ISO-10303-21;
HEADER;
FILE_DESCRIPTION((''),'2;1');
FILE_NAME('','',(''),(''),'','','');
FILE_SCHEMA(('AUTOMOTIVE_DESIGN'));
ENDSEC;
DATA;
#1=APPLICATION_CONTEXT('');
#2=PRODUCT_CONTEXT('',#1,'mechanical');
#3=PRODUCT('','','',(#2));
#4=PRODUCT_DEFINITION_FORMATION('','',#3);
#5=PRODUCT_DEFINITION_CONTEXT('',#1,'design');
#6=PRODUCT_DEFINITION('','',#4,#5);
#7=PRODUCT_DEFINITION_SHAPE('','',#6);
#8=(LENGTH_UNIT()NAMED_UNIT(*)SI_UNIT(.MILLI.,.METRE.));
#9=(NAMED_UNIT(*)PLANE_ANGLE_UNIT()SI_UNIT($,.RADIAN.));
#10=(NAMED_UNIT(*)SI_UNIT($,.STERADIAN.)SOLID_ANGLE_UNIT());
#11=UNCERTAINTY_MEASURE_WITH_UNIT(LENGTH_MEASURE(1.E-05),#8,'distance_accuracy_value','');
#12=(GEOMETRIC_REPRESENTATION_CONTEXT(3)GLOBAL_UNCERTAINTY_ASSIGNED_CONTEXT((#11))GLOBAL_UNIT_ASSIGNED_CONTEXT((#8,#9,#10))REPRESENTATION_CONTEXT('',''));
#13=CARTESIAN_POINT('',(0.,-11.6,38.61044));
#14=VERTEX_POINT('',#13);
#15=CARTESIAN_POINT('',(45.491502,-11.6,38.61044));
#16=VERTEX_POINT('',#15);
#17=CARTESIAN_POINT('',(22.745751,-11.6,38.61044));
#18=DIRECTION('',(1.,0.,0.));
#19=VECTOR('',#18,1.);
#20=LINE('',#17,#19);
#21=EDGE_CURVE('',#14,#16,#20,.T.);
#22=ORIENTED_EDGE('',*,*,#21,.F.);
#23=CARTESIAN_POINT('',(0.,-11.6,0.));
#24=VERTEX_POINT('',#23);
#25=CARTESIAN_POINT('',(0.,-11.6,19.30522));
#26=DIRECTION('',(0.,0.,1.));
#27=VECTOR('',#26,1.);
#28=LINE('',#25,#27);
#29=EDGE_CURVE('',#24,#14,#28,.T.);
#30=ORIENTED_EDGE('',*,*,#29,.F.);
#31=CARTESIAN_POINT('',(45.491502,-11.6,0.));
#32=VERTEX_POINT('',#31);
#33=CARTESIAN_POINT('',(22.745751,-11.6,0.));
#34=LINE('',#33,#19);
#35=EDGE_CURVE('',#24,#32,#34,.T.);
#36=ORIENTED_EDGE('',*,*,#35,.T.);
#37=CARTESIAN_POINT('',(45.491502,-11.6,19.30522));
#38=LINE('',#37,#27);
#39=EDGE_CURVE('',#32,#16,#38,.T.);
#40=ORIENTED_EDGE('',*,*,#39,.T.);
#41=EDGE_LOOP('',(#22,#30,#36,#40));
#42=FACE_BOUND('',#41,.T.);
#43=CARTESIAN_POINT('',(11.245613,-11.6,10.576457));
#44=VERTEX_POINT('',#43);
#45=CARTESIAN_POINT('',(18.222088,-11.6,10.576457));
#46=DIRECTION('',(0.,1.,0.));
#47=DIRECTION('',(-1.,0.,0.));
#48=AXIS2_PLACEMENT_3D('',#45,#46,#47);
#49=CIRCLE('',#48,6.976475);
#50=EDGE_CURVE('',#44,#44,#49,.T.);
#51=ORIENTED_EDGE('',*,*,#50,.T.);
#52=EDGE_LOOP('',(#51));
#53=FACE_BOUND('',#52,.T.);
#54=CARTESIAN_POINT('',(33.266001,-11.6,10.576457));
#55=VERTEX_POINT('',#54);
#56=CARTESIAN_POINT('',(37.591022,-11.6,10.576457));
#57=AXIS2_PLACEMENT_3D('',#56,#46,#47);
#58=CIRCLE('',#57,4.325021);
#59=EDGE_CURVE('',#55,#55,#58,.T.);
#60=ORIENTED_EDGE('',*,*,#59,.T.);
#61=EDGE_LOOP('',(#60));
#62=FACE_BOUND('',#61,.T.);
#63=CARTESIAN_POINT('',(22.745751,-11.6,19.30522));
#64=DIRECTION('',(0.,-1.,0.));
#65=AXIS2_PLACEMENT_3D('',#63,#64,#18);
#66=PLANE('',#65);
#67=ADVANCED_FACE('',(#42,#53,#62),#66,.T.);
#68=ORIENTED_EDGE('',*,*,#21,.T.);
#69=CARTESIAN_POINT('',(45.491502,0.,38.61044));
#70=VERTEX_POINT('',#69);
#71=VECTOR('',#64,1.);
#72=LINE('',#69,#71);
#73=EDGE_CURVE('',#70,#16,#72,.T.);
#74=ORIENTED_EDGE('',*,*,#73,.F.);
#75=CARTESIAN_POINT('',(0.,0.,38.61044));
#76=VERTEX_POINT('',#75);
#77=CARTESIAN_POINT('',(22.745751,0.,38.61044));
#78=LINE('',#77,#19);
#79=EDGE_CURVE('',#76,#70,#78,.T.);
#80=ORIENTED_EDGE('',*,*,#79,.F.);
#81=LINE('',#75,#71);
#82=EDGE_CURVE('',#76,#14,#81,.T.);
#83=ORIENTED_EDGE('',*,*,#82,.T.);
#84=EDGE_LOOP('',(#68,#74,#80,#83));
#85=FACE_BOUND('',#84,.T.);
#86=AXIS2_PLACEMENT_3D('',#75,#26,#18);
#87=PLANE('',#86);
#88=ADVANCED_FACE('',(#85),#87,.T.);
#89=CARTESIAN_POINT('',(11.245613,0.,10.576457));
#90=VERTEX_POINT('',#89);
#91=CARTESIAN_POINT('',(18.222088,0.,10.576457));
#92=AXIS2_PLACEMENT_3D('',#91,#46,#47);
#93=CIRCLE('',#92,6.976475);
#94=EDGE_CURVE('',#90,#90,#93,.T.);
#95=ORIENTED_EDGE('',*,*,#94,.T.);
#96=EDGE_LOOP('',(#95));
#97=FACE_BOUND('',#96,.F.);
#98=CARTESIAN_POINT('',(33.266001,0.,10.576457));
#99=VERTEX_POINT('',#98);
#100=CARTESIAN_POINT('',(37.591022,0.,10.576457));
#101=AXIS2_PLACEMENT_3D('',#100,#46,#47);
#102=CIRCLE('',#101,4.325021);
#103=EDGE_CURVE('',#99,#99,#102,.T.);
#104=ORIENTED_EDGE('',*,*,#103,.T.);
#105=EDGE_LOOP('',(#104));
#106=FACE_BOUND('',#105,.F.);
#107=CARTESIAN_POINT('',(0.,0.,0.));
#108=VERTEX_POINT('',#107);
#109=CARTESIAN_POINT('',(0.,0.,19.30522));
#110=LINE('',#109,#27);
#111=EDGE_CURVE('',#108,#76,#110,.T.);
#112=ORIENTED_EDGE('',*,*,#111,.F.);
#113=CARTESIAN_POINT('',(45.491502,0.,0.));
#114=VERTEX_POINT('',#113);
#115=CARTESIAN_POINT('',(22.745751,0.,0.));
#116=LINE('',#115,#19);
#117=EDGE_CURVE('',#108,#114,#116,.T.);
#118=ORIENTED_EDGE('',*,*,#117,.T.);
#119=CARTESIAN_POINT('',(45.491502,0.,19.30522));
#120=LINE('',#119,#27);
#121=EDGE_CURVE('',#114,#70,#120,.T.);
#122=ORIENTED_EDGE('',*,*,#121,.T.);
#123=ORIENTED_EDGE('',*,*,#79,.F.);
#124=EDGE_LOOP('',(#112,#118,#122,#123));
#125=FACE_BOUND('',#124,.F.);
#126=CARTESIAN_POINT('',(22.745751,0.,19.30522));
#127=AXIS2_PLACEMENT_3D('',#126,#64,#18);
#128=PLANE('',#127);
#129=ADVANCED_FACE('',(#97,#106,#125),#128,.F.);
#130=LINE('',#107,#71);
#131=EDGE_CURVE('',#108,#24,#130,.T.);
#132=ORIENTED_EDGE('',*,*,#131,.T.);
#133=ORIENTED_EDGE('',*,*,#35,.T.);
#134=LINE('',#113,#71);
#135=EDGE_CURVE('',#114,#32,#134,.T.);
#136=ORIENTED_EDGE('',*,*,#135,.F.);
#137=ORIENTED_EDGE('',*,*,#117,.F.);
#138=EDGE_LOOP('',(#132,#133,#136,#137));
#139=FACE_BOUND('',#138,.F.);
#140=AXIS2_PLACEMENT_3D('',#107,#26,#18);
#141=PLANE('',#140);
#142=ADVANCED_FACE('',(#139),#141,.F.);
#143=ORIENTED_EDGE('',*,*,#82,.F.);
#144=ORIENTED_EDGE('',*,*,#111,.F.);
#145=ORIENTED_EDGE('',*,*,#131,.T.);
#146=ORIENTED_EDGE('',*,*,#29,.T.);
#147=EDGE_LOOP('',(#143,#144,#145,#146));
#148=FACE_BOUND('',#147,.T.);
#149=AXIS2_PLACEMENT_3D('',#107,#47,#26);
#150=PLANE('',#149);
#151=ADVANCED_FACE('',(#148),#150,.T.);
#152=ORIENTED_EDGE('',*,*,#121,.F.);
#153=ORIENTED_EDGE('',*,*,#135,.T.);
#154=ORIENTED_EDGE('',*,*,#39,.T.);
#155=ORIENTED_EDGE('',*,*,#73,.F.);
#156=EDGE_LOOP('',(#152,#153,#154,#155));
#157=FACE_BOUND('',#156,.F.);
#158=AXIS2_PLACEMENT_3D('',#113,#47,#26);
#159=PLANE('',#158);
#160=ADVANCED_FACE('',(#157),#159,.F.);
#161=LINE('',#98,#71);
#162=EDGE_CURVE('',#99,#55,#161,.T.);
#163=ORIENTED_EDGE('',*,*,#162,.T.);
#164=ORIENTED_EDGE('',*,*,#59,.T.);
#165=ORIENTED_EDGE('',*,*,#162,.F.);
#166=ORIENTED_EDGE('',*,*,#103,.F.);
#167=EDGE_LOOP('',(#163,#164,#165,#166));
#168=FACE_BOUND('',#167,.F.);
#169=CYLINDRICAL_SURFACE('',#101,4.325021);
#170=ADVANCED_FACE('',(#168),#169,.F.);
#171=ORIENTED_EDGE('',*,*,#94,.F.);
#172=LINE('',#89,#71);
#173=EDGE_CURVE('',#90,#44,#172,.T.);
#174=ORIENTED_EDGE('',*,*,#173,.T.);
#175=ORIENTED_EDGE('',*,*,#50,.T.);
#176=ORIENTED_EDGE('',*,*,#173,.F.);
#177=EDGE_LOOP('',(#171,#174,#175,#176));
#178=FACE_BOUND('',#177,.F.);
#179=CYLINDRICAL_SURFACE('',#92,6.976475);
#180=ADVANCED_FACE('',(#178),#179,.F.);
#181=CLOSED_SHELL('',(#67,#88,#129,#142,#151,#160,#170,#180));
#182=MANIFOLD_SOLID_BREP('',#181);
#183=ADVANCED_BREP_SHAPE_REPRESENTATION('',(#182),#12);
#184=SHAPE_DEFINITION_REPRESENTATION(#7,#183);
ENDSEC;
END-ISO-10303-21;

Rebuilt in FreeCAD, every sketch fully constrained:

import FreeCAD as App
import Part
import Sketcher


def add_polygon(sketch, points):
    """Adds a closed chain of lines whose ends are joined by coincident constraints."""
    first, n = sketch.GeometryCount, len(points)
    for a, b in zip(points, points[1:] + points[:1]):
        sketch.addGeometry(Part.LineSegment(App.Vector(*a, 0), App.Vector(*b, 0)), False)
    for i in range(n):
        sketch.addConstraint(Sketcher.Constraint("Coincident", first + i, 2, first + (i + 1) % n, 1))

doc = App.newDocument("Part")
body = doc.addObject("PartDesign::Body", "Body")

# Sketch on XZ plane
sketch1 = body.newObject("Sketcher::SketchObject", "Sketch")
sketch1.AttachmentSupport = (doc.getObject("XZ_Plane"), [""])
sketch1.MapMode = "FlatFace"
add_polygon(sketch1, [(0, 39), (0, 0), (45, 0), (45, 39)])  # lines 0-3
sketch1.addConstraint([
    Sketcher.Constraint("Vertical", 0),
    Sketcher.Constraint("Horizontal", 1),
    Sketcher.Constraint("Vertical", 2),
    Sketcher.Constraint("Horizontal", 3),
    Sketcher.Constraint("Coincident", 0, 2, -1, 1),
    Sketcher.Constraint("DistanceX", 1, 1, 1, 2, 45.491502),
    Sketcher.Constraint("DistanceY", 0, 2, 0, 1, 38.61044),
])
pad1 = body.newObject("PartDesign::Pad", "Pad")
pad1.Profile = sketch1
pad1.Length = 11.6

# Sketch on XZ plane
sketch2 = body.newObject("Sketcher::SketchObject", "Sketch001")
sketch2.AttachmentSupport = (doc.getObject("XZ_Plane"), [""])
sketch2.MapMode = "FlatFace"
sketch2.addGeometry([
    Part.Circle(App.Vector(18.2, 10.6, 0), App.Vector(0, 0, 1), 7),
    Part.Circle(App.Vector(37.6, 10.6, 0), App.Vector(0, 0, 1), 4.3),
], False)
sketch2.addConstraint([
    Sketcher.Constraint("Horizontal", 0, 3, 1, 3),
    Sketcher.Constraint("Diameter", 0, 13.95295),
    Sketcher.Constraint("Diameter", 1, 8.650042),
    Sketcher.Constraint("DistanceX", -1, 1, 0, 3, 18.222088),
    Sketcher.Constraint("DistanceY", -1, 1, 0, 3, 10.576457),
    Sketcher.Constraint("DistanceX", -1, 1, 1, 3, 37.591022),
])
pocket1 = body.newObject("PartDesign::Pocket", "Pocket")
pocket1.Profile = sketch2
pocket1.Length = 25
pocket1.Reversed = True

doc.recompute()
